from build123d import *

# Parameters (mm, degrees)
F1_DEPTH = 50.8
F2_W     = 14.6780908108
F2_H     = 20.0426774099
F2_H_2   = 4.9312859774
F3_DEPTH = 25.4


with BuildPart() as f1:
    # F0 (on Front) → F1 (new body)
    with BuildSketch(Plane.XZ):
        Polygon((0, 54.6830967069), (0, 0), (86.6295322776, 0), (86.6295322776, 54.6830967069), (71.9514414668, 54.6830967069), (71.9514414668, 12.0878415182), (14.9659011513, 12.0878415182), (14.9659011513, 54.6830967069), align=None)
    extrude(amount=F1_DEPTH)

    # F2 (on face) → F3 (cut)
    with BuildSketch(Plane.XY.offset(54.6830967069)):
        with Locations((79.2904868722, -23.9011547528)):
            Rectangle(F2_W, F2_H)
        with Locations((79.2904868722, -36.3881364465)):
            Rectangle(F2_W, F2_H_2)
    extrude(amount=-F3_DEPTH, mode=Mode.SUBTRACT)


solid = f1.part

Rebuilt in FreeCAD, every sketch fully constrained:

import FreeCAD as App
import Part
import Sketcher

V = App.Vector
Q = App.Units.Quantity


def add_polygon(sketch, points):
    """Adds a closed chain of lines whose ends are joined by coincident constraints."""
    first, n = sketch.GeometryCount, len(points)
    for a, b in zip(points, points[1:] + points[:1]):
        sketch.addGeometry(Part.LineSegment(App.Vector(*a, 0), App.Vector(*b, 0)), False)
    for i in range(n):
        sketch.addConstraint(Sketcher.Constraint("Coincident", first + i, 2, first + (i + 1) % n, 1))

doc = App.newDocument("Part")
body = doc.addObject("PartDesign::Body", "Body")

# Sketch on XZ plane
sketch1 = body.newObject("Sketcher::SketchObject", "Sketch")
sketch1.AttachmentSupport = (doc.getObject("XZ_Plane"), [""])
sketch1.MapMode = "FlatFace"
add_polygon(sketch1, [(0, 54.683097), (0, 0), (86.629532, 0), (86.629532, 54.683097), (71.951441, 54.683097), (71.951441, 12.087842), (14.965901, 12.087842), (14.965901, 54.683097)])  # lines 0-7
sketch1.addConstraint([
    Sketcher.Constraint("Vertical", 0),
    Sketcher.Constraint("Horizontal", 1),
    Sketcher.Constraint("Vertical", 2),
    Sketcher.Constraint("Horizontal", 3),
    Sketcher.Constraint("Vertical", 4),
    Sketcher.Constraint("Horizontal", 5),
    Sketcher.Constraint("Vertical", 6),
    Sketcher.Constraint("Horizontal", 7),
    Sketcher.Constraint("Coincident", 0, 2, -1, 1),
    Sketcher.Constraint("Horizontal", 3, 2, 6, 2),
    Sketcher.Constraint("DistanceX", 7, 2, 7, 1, Q("14.965901 mm")),
    Sketcher.Constraint("DistanceX", 3, 2, 3, 1, Q("14.678091 mm")),
    Sketcher.Constraint("DistanceX", 5, 2, 5, 1, Q("56.98554 mm")),
    Sketcher.Constraint("DistanceY", 0, 2, 0, 1, Q("54.683097 mm")),
    Sketcher.Constraint("DistanceY", 4, 2, 4, 1, Q("42.595255 mm")),
])
pad1 = body.newObject("PartDesign::Pad", "Pad")
pad1.Profile = sketch1
pad1.Length = Q("2 in")

# Sketch on XY plane
sketch2 = body.newObject("Sketcher::SketchObject", "Sketch001")
sketch2.AttachmentSupport = (doc.getObject("XY_Plane"), [""])
sketch2.MapMode = "FlatFace"
sketch2.AttachmentOffset = App.Placement(V(0, 0, 54.683097), App.Rotation())
add_polygon(sketch2, [(71.951441, -13.879816), (71.951441, -38.853779), (86.629532, -38.853779), (86.629532, -13.879816)])  # lines 0-3
sketch2.addConstraint([
    Sketcher.Constraint("Vertical", 0),
    Sketcher.Constraint("Horizontal", 1),
    Sketcher.Constraint("Vertical", 2),
    Sketcher.Constraint("Horizontal", 3),
    Sketcher.Constraint("DistanceX", 1, 1, 1, 2, Q("14.678091 mm")),
    Sketcher.Constraint("DistanceY", 0, 2, 0, 1, Q("24.973963 mm")),
    Sketcher.Constraint("DistanceX", -1, 1, 0, 2, Q("71.951441 mm")),
    Sketcher.Constraint("DistanceY", 0, 2, -1, 1, Q("38.853779 mm")),
])
pocket1 = body.newObject("PartDesign::Pocket", "Pocket")
pocket1.Profile = sketch2
pocket1.Length = Q("1 in")

doc.recompute()
